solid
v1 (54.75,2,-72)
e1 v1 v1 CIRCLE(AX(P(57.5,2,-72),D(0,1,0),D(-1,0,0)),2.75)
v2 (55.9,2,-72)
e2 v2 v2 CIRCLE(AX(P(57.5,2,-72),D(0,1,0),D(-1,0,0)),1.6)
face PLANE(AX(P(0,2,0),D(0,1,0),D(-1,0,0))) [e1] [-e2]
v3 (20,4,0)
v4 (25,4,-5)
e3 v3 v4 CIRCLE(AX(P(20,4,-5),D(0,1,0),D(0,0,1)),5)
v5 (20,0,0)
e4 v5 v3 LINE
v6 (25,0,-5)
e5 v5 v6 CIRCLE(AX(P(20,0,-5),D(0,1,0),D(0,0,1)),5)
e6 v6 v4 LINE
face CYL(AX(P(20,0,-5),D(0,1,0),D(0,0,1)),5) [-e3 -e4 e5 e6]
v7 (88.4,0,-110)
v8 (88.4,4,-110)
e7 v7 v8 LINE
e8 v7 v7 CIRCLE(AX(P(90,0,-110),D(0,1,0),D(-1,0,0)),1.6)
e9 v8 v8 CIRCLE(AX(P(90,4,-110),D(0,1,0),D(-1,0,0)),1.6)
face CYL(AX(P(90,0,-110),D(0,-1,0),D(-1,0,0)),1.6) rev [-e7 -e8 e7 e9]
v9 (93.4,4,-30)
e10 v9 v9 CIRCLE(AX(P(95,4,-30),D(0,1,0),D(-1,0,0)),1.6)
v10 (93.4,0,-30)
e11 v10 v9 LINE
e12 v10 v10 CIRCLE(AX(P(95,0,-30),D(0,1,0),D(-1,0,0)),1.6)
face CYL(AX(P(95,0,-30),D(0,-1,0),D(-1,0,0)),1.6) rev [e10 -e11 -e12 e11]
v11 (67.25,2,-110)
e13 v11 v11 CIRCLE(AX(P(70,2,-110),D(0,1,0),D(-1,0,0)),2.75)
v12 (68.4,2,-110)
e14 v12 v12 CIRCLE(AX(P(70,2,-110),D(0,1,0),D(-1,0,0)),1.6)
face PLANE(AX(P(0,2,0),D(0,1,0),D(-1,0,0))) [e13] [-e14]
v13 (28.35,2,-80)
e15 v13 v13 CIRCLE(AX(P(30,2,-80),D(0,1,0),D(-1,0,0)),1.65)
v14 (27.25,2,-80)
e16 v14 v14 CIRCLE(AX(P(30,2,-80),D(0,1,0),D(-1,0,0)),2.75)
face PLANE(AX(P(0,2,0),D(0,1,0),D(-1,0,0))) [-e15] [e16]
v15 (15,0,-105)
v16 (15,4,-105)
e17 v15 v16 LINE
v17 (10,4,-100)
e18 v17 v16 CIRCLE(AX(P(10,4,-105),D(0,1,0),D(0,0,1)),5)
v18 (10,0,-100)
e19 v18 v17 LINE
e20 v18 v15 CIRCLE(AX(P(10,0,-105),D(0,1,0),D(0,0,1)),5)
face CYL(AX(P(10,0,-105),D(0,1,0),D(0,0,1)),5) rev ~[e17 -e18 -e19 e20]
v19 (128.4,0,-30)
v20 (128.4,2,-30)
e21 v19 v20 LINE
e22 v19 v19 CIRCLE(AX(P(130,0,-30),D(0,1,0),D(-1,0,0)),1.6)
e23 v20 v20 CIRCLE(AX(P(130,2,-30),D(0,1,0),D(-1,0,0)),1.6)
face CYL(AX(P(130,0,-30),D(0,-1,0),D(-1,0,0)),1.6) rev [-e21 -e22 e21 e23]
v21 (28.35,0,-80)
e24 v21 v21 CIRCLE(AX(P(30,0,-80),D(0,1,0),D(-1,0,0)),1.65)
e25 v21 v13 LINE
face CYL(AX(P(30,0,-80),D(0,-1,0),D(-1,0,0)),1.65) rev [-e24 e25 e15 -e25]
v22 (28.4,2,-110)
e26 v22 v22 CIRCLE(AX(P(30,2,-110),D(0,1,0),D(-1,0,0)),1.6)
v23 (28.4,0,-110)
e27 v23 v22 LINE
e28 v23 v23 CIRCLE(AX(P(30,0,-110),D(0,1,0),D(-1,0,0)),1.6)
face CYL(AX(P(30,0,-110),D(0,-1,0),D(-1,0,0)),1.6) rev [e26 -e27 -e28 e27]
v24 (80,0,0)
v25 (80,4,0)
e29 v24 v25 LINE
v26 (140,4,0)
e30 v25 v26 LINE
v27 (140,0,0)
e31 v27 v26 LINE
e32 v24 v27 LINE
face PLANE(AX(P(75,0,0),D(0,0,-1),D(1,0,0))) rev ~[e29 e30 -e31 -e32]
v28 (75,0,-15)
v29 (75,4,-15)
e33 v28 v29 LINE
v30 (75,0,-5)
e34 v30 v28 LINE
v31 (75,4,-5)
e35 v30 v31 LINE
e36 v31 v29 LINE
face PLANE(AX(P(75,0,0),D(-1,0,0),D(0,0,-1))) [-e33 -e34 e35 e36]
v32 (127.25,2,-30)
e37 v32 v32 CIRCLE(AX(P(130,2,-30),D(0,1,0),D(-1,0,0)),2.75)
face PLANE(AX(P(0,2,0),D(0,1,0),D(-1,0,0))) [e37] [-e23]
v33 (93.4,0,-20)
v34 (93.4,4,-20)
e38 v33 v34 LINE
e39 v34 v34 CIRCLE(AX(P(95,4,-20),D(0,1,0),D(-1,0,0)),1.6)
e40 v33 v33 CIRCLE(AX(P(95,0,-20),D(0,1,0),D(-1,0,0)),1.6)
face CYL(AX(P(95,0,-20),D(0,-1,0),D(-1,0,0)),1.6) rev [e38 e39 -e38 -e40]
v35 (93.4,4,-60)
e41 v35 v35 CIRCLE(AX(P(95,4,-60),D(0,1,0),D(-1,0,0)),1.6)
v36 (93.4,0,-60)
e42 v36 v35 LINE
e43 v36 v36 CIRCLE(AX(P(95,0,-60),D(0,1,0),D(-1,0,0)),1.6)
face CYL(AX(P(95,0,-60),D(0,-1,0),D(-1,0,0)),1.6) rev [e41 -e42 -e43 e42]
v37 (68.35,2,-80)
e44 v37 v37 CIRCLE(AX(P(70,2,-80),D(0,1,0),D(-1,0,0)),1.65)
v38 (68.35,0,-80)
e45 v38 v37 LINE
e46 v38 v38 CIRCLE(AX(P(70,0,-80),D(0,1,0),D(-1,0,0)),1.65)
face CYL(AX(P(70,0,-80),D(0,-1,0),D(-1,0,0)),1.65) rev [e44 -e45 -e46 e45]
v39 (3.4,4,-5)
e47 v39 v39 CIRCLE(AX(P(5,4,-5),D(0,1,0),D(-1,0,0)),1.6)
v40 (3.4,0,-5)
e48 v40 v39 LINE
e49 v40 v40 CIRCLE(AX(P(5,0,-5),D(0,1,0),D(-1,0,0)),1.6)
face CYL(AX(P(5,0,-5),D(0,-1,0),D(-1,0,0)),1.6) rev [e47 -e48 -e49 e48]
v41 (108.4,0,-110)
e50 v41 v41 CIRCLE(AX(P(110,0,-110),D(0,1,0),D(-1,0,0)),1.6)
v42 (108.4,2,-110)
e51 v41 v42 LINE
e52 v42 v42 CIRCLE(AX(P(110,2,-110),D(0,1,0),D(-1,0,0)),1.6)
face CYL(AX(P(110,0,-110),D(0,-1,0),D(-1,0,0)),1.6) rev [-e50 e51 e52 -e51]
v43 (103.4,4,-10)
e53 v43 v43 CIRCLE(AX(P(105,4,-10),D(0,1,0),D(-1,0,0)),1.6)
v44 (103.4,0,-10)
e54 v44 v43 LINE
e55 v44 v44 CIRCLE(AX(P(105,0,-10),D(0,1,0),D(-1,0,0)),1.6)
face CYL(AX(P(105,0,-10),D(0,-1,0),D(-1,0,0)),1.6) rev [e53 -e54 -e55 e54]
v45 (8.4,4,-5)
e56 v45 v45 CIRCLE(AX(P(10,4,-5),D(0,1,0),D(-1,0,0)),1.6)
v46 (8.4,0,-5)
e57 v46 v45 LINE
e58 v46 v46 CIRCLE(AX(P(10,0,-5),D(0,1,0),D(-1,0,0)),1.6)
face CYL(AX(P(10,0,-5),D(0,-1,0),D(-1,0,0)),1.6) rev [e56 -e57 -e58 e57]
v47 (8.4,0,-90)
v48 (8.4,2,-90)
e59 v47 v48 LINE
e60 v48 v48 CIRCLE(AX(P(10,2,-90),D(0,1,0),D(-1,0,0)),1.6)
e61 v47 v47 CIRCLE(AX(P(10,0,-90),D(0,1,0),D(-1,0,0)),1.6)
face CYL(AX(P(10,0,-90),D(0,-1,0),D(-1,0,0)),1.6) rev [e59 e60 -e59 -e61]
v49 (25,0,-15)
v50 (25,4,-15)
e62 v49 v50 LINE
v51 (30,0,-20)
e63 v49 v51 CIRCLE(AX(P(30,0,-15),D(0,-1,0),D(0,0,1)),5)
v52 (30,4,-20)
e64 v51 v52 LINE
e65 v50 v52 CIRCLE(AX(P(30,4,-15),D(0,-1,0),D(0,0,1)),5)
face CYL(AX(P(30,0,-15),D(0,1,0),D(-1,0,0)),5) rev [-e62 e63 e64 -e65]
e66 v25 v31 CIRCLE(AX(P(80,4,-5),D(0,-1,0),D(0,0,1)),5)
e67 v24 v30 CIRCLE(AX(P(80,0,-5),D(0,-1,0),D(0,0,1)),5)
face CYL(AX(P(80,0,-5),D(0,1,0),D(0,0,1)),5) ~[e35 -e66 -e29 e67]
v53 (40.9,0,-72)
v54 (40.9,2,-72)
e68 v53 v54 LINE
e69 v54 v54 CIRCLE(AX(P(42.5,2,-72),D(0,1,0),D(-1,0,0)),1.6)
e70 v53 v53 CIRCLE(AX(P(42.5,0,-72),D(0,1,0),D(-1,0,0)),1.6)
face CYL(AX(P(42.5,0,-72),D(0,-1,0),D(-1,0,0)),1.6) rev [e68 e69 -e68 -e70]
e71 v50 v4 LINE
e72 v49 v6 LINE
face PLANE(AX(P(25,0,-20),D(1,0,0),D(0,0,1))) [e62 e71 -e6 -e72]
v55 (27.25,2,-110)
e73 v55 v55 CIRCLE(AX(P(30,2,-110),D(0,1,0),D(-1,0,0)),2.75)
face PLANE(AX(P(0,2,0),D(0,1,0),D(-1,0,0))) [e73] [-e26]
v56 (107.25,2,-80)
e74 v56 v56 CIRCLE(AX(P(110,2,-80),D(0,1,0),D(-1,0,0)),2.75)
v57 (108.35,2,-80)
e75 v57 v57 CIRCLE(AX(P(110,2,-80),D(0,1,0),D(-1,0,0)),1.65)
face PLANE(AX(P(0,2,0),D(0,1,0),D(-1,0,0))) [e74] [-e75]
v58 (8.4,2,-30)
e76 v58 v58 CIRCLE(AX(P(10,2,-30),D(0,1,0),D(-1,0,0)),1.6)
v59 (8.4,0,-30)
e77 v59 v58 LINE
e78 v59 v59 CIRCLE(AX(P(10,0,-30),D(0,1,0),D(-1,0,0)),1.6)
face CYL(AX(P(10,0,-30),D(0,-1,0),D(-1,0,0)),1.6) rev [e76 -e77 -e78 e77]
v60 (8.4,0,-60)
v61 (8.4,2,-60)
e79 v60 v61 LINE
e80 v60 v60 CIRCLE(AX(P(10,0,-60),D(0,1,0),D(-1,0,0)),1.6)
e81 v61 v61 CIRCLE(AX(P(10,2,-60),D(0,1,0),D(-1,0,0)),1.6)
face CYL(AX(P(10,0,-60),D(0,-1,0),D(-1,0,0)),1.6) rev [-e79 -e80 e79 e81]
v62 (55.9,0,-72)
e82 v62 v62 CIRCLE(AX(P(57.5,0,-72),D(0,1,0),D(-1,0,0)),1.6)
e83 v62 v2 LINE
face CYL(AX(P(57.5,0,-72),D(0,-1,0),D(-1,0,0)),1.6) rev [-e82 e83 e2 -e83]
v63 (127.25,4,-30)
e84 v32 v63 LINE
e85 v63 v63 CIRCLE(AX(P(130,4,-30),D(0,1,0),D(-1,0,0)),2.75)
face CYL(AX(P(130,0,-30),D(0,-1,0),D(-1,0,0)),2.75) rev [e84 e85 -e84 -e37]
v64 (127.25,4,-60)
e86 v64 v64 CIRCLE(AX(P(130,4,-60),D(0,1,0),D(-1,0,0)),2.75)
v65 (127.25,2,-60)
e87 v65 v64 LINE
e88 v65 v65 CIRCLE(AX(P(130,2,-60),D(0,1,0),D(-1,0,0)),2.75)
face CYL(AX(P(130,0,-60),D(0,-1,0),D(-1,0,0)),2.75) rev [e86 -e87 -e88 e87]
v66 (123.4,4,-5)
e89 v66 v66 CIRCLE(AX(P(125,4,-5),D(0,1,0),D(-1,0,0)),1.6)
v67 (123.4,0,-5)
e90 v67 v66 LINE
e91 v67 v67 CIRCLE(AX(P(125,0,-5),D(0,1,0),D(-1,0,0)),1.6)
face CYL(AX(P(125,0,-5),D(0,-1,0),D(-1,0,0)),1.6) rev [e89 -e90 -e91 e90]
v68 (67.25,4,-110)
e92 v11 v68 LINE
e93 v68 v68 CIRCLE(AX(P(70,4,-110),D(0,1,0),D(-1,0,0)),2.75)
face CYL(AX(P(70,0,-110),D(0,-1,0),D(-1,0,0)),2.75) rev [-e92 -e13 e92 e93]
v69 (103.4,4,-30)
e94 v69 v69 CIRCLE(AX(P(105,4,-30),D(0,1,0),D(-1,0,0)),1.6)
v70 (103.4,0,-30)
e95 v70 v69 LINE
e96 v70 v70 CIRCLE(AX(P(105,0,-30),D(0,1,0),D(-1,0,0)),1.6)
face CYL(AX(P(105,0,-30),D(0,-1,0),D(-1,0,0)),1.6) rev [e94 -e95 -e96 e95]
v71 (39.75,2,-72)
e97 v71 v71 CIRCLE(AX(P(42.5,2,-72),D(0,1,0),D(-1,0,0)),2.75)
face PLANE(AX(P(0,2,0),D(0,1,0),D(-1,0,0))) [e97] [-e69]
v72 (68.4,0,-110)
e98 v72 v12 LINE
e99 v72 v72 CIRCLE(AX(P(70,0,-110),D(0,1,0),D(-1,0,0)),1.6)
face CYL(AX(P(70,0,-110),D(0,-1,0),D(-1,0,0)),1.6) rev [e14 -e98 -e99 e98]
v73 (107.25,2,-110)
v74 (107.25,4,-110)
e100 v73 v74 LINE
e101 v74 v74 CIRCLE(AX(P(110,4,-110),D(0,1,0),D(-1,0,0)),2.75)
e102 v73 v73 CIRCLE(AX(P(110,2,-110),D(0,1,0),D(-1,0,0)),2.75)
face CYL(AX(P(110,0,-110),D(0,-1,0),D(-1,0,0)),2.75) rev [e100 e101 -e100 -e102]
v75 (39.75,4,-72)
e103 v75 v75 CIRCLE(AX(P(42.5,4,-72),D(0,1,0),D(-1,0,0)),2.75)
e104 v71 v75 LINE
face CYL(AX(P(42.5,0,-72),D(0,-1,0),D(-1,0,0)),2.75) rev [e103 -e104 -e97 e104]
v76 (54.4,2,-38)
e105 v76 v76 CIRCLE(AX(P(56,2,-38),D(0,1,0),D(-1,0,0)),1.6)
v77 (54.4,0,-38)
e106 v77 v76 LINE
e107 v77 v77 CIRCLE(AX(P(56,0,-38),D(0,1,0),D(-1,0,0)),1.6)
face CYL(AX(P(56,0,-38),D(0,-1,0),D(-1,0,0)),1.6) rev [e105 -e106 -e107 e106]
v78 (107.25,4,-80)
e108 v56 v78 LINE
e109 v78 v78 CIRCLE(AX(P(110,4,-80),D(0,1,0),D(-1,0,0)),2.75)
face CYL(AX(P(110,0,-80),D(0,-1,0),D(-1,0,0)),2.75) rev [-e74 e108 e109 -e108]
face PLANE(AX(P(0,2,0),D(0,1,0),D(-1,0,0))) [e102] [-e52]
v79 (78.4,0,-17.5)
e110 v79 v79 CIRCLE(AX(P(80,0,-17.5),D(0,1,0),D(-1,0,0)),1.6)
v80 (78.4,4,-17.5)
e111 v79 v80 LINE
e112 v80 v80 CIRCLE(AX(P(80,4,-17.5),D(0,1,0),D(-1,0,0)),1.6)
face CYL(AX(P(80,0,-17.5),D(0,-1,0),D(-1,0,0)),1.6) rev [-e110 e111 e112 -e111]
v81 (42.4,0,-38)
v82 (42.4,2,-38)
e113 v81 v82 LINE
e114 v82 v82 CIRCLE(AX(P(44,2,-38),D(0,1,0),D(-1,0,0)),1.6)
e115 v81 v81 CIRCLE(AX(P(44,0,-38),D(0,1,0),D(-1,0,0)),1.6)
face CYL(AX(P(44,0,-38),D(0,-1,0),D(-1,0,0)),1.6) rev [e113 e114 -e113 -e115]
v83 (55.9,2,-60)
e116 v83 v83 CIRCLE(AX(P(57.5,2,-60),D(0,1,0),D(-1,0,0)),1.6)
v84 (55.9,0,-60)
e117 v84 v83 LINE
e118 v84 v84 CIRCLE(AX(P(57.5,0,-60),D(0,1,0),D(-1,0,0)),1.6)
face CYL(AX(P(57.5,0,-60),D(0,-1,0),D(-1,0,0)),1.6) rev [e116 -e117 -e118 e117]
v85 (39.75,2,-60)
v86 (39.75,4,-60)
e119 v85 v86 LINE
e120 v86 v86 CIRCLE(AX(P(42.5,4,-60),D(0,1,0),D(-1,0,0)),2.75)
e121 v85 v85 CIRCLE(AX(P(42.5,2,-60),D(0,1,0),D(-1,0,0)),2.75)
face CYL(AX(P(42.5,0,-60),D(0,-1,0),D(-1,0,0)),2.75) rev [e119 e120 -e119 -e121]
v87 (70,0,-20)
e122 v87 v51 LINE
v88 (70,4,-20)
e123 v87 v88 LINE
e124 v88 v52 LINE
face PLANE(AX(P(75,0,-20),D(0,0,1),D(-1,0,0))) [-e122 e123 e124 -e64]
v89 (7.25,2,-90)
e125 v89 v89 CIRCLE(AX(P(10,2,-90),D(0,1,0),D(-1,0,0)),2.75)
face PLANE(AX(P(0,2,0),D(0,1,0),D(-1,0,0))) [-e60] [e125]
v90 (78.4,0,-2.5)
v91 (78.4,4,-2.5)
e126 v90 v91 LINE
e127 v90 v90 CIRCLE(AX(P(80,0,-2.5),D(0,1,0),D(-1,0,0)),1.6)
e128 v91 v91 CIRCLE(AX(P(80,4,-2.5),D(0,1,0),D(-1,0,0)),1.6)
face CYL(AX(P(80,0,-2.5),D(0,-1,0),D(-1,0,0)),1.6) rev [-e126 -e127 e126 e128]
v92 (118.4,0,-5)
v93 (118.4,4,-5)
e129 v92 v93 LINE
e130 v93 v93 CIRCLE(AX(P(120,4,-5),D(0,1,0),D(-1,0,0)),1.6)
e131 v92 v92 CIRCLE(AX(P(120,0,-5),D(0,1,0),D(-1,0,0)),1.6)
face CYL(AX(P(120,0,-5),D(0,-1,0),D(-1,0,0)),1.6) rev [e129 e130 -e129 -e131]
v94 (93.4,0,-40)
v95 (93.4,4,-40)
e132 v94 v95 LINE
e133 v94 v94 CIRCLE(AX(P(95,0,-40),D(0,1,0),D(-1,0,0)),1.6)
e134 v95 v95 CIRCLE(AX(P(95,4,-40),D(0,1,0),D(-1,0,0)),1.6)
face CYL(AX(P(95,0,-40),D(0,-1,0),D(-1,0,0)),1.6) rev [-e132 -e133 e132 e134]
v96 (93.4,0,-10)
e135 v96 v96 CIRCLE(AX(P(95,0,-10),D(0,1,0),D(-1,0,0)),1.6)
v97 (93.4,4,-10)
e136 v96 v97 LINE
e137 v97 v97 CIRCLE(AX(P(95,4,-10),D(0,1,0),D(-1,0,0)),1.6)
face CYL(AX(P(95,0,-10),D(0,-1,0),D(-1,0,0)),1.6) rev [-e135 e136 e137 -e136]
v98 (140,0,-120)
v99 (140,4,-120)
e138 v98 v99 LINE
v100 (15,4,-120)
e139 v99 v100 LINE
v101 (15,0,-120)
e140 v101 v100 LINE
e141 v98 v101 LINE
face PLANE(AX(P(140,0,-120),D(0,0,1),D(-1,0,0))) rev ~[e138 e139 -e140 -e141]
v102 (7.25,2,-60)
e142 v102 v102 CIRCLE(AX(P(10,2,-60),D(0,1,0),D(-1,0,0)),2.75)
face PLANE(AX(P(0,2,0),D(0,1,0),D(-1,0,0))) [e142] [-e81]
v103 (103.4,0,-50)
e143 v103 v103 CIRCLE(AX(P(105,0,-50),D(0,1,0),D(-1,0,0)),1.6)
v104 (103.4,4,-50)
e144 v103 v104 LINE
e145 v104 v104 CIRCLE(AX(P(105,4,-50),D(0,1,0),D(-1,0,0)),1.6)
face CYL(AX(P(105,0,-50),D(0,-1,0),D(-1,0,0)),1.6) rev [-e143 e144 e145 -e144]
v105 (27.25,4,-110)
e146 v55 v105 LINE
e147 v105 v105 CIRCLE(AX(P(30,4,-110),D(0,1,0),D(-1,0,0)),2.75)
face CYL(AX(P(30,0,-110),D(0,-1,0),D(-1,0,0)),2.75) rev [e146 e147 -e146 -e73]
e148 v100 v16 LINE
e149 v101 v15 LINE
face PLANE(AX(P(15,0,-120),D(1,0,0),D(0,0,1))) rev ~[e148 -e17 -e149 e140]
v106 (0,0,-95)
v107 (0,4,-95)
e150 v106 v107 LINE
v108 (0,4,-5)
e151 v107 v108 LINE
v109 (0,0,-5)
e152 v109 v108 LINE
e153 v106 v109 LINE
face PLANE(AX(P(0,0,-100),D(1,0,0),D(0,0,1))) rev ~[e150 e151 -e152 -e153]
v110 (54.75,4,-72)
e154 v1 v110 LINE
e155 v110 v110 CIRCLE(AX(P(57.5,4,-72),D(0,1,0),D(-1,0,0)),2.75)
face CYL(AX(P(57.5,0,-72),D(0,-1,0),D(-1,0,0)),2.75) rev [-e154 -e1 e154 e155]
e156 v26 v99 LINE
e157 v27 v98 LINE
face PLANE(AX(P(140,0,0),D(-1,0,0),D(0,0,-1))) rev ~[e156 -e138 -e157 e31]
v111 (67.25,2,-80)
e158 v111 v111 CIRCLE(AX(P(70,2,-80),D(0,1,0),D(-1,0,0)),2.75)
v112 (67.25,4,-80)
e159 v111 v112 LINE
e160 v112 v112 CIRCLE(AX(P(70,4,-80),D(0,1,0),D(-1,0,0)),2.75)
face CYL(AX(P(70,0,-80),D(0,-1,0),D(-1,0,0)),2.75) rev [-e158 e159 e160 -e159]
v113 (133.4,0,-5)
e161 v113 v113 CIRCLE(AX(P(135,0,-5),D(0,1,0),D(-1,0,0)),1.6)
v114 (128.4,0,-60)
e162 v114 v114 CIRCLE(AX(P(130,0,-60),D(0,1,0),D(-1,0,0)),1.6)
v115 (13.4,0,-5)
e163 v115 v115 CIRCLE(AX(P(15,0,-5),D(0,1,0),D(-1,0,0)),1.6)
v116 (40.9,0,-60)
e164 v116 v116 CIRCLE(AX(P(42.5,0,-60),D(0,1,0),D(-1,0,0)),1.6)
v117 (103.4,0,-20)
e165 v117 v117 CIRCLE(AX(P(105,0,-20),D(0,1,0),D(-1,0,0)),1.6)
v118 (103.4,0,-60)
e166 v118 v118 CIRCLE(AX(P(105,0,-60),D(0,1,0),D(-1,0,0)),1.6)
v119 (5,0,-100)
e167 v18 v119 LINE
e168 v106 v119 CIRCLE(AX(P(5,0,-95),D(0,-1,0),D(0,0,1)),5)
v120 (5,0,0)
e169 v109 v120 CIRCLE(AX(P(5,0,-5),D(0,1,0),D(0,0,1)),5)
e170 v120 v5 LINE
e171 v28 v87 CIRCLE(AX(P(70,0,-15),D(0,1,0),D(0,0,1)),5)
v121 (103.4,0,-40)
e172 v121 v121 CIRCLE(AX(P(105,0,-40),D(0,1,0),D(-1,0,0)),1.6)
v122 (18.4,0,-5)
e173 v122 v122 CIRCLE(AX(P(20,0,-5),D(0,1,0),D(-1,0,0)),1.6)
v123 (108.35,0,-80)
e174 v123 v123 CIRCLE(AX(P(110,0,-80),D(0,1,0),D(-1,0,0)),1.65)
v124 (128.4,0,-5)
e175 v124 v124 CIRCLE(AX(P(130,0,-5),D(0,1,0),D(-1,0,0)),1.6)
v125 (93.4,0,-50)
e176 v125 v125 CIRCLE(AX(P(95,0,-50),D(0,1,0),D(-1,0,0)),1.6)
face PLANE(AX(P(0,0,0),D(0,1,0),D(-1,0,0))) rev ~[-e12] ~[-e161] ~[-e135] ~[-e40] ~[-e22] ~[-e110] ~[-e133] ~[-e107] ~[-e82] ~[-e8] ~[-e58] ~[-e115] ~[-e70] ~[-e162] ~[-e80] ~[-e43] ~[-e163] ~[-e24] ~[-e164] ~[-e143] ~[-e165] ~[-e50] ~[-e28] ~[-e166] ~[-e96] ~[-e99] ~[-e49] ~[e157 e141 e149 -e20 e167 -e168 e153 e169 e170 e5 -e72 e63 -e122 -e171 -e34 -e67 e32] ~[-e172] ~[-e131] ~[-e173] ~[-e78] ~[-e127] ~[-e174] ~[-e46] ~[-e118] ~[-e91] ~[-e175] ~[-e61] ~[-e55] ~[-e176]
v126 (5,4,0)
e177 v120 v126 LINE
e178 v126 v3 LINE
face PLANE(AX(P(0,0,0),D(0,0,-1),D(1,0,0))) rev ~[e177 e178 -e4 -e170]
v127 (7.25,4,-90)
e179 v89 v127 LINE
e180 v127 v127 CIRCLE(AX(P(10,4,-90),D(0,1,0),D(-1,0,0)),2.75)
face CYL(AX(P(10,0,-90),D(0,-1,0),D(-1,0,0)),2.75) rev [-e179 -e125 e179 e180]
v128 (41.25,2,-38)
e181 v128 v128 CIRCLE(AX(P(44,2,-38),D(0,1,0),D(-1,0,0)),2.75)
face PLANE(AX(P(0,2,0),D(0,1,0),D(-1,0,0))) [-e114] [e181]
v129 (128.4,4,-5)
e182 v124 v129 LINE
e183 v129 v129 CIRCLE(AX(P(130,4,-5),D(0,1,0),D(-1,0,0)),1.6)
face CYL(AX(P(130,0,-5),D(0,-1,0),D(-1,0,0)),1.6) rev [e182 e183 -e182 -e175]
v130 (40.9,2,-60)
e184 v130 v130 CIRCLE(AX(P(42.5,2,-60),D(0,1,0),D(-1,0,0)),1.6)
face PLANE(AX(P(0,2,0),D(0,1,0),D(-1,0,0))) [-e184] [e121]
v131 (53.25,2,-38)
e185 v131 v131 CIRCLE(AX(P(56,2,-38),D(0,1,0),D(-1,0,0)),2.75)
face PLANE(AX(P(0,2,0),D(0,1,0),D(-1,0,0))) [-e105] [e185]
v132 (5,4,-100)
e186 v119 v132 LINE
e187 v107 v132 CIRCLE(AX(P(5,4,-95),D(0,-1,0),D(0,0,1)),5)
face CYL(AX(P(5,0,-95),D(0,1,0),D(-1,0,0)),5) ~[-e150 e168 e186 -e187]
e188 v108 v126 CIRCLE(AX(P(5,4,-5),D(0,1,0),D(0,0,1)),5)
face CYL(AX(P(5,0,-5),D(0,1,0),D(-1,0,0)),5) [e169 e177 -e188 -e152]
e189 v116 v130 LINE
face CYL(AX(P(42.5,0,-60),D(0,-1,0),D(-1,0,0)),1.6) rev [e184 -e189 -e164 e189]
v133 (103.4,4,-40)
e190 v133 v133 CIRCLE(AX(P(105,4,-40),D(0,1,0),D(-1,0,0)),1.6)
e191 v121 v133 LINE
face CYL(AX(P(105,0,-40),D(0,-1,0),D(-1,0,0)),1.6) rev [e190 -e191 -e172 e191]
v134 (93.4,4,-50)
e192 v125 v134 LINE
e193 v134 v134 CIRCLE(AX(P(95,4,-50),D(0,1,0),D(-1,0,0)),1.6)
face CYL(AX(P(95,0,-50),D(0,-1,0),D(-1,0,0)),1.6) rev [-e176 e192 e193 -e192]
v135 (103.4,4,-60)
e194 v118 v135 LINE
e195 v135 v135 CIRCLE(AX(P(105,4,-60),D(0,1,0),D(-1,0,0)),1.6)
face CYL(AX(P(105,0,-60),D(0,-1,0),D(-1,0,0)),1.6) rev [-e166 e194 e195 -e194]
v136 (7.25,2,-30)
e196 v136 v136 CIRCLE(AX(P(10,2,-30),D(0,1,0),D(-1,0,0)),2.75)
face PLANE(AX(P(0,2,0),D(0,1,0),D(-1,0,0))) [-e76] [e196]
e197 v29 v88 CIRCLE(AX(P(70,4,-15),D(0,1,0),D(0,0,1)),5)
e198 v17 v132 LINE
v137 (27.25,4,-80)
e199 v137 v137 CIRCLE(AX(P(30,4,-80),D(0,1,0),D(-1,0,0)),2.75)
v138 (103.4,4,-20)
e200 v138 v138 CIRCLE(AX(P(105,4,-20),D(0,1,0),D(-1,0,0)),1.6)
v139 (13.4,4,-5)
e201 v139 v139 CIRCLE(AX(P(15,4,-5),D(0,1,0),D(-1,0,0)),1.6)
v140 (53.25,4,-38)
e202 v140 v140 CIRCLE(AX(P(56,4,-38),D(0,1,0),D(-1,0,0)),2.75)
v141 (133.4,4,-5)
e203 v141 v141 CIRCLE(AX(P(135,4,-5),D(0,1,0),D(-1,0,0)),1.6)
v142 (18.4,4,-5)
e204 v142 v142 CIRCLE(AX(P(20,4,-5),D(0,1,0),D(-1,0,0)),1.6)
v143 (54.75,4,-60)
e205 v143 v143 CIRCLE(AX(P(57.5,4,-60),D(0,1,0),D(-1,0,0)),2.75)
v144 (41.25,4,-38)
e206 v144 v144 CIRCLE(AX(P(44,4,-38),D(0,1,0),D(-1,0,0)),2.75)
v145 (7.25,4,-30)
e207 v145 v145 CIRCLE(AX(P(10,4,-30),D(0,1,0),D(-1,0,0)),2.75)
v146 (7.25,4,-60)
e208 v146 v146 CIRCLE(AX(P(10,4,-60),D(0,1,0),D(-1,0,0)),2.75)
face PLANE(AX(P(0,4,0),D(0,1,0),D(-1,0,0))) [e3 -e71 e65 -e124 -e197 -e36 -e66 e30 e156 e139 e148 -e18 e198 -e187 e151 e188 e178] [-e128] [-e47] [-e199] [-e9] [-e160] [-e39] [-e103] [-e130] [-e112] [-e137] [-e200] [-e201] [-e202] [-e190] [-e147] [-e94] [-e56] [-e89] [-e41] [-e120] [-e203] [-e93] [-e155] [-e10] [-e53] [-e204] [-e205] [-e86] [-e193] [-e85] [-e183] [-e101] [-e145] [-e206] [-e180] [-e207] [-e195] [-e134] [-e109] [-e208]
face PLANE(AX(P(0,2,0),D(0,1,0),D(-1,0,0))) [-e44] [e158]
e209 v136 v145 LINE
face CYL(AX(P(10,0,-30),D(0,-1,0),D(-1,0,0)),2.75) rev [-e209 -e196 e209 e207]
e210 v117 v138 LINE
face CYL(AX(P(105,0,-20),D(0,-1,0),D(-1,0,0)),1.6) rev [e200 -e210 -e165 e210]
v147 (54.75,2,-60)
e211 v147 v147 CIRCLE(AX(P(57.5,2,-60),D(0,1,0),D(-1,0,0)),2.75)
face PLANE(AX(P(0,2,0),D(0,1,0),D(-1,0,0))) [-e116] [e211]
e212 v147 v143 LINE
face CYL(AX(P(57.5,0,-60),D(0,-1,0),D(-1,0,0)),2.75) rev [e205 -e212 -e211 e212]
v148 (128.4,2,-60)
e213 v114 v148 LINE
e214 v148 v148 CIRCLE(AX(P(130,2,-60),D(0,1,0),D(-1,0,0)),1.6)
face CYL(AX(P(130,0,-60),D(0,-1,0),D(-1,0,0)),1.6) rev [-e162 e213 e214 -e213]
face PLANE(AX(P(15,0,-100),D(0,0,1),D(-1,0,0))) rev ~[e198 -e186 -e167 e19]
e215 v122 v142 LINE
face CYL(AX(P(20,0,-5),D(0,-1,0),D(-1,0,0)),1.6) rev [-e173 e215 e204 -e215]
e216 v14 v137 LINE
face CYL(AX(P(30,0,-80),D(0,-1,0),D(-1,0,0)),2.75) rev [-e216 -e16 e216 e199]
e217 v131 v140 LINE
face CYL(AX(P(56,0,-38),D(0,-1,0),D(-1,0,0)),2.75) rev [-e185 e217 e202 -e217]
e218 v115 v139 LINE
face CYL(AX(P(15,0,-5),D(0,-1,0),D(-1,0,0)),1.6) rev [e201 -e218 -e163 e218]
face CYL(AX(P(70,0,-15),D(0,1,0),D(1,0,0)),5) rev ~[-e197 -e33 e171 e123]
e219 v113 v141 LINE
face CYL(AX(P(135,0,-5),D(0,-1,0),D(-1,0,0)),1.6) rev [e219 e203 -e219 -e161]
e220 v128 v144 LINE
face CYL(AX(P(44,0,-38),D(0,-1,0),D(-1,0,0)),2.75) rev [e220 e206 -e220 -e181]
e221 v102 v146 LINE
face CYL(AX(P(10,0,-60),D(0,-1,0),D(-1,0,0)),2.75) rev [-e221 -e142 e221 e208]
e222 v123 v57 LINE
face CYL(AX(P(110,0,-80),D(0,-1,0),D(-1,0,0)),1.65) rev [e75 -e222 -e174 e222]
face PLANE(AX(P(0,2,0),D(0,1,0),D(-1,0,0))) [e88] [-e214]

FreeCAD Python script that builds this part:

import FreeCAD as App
import Part
import Sketcher
Q = App.Units.Quantity


def edges_at(feature, points):
    """Names of the edges that pass closest to the given points."""
    edges = feature.Shape.Edges
    near = lambda p: min(range(len(edges)), key=lambda i: edges[i].distToShape(Part.Vertex(*p))[0])
    return sorted({f"Edge{near(p) + 1}" for p in points})

doc = App.newDocument("Part")
body = doc.addObject("PartDesign::Body", "Body")

# Sketch on XZ plane
sketch1 = body.newObject("Sketcher::SketchObject", "Sketch")
sketch1.AttachmentSupport = (doc.getObject("XZ_Plane"), [""])
sketch1.MapMode = "FlatFace"
sketch1.addGeometry(Part.LineSegment(App.Vector(0, -100, 0), App.Vector(0, 0, 0)), False)
sketch1.addGeometry(Part.LineSegment(App.Vector(0, 0, 0), App.Vector(25, 0, 0)), False)
sketch1.addGeometry(Part.LineSegment(App.Vector(25, 0, 0), App.Vector(25, -20, 0)), False)
sketch1.addGeometry(Part.LineSegment(App.Vector(25, -20, 0), App.Vector(75, -20, 0)), False)
sketch1.addGeometry(Part.LineSegment(App.Vector(75, -20, 0), App.Vector(75, 0, 0)), False)
sketch1.addGeometry(Part.LineSegment(App.Vector(75, 0, 0), App.Vector(140, 0, 0)), False)
sketch1.addGeometry(Part.LineSegment(App.Vector(140, 0, 0), App.Vector(140, -120, 0)), False)
sketch1.addGeometry(Part.LineSegment(App.Vector(140, -120, 0), App.Vector(15, -120, 0)), False)
sketch1.addGeometry(Part.LineSegment(App.Vector(15, -120, 0), App.Vector(15, -100, 0)), False)
sketch1.addGeometry(Part.LineSegment(App.Vector(15, -100, 0), App.Vector(0, -100, 0)), False)
sketch1.addGeometry(Part.Circle(App.Vector(110, -110, 0), App.Vector(0, 0, 1), 2.8), False)
sketch1.addGeometry(Part.Circle(App.Vector(90, -110, 0), App.Vector(0, 0, 1), 1.6), False)
sketch1.addGeometry(Part.Circle(App.Vector(110, -80, 0), App.Vector(0, 0, 1), 2.8), False)
sketch1.addGeometry(Part.Circle(App.Vector(70, -110, 0), App.Vector(0, 0, 1), 2.8), False)
sketch1.addGeometry(Part.Circle(App.Vector(30, -110, 0), App.Vector(0, 0, 1), 2.8), False)
sketch1.addGeometry(Part.Circle(App.Vector(70, -80, 0), App.Vector(0, 0, 1), 2.8), False)
sketch1.addGeometry(Part.Circle(App.Vector(57.5, -72, 0), App.Vector(0, 0, 1), 2.8), False)
sketch1.addGeometry(Part.Circle(App.Vector(42.5, -72, 0), App.Vector(0, 0, 1), 2.8), False)
sketch1.addGeometry(Part.Circle(App.Vector(30, -80, 0), App.Vector(0, 0, 1), 2.8), False)
sketch1.addGeometry(Part.Circle(App.Vector(10, -90, 0), App.Vector(0, 0, 1), 2.8), False)
sketch1.addGeometry(Part.Circle(App.Vector(130, -60, 0), App.Vector(0, 0, 1), 2.8), False)
sketch1.addGeometry(Part.Circle(App.Vector(105, -60, 0), App.Vector(0, 0, 1), 1.6), False)
sketch1.addGeometry(Part.Circle(App.Vector(95, -60, 0), App.Vector(0, 0, 1), 1.6), False)
sketch1.addGeometry(Part.Circle(App.Vector(105, -50, 0), App.Vector(0, 0, 1), 1.6), False)
sketch1.addGeometry(Part.Circle(App.Vector(95, -50, 0), App.Vector(0, 0, 1), 1.6), False)
sketch1.addGeometry(Part.Circle(App.Vector(105, -40, 0), App.Vector(0, 0, 1), 1.6), False)
sketch1.addGeometry(Part.Circle(App.Vector(95, -40, 0), App.Vector(0, 0, 1), 1.6), False)
sketch1.addGeometry(Part.Circle(App.Vector(130, -30, 0), App.Vector(0, 0, 1), 2.8), False)
sketch1.addGeometry(Part.Circle(App.Vector(135, -5, 0), App.Vector(0, 0, 1), 1.6), False)
sketch1.addGeometry(Part.Circle(App.Vector(130, -5, 0), App.Vector(0, 0, 1), 1.6), False)
sketch1.addGeometry(Part.Circle(App.Vector(125, -5, 0), App.Vector(0, 0, 1), 1.6), False)
sketch1.addGeometry(Part.Circle(App.Vector(120, -5, 0), App.Vector(0, 0, 1), 1.6), False)
sketch1.addGeometry(Part.Circle(App.Vector(105, -30, 0), App.Vector(0, 0, 1), 1.6), False)
sketch1.addGeometry(Part.Circle(App.Vector(95, -30, 0), App.Vector(0, 0, 1), 1.6), False)
sketch1.addGeometry(Part.Circle(App.Vector(105, -20, 0), App.Vector(0, 0, 1), 1.6), False)
sketch1.addGeometry(Part.Circle(App.Vector(95, -20, 0), App.Vector(0, 0, 1), 1.6), False)
sketch1.addGeometry(Part.Circle(App.Vector(80, -17.5, 0), App.Vector(0, 0, 1), 1.6), False)
sketch1.addGeometry(Part.Circle(App.Vector(105, -10, 0), App.Vector(0, 0, 1), 1.6), False)
sketch1.addGeometry(Part.Circle(App.Vector(95, -10, 0), App.Vector(0, 0, 1), 1.6), False)
sketch1.addGeometry(Part.Circle(App.Vector(80, -2.5, 0), App.Vector(0, 0, 1), 1.6), False)
sketch1.addGeometry(Part.Circle(App.Vector(57.5, -60, 0), App.Vector(0, 0, 1), 2.8), False)
sketch1.addGeometry(Part.Circle(App.Vector(42.5, -60, 0), App.Vector(0, 0, 1), 2.8), False)
sketch1.addGeometry(Part.Circle(App.Vector(56, -38, 0), App.Vector(0, 0, 1), 2.8), False)
sketch1.addGeometry(Part.Circle(App.Vector(44, -38, 0), App.Vector(0, 0, 1), 2.8), False)
sketch1.addGeometry(Part.Circle(App.Vector(10, -60, 0), App.Vector(0, 0, 1), 2.8), False)
sketch1.addGeometry(Part.Circle(App.Vector(10, -30, 0), App.Vector(0, 0, 1), 2.8), False)
sketch1.addGeometry(Part.Circle(App.Vector(20, -5, 0), App.Vector(0, 0, 1), 1.6), False)
sketch1.addGeometry(Part.Circle(App.Vector(15, -5, 0), App.Vector(0, 0, 1), 1.6), False)
sketch1.addGeometry(Part.Circle(App.Vector(10, -5, 0), App.Vector(0, 0, 1), 1.6), False)
sketch1.addGeometry(Part.Circle(App.Vector(5, -5, 0), App.Vector(0, 0, 1), 1.6), False)
sketch1.addConstraint(Sketcher.Constraint("Coincident", 0, 2, 1, 1))
sketch1.addConstraint(Sketcher.Constraint("Coincident", 1, 2, 2, 1))
sketch1.addConstraint(Sketcher.Constraint("Coincident", 2, 2, 3, 1))
sketch1.addConstraint(Sketcher.Constraint("Coincident", 3, 2, 4, 1))
sketch1.addConstraint(Sketcher.Constraint("Coincident", 4, 2, 5, 1))
sketch1.addConstraint(Sketcher.Constraint("Coincident", 5, 2, 6, 1))
sketch1.addConstraint(Sketcher.Constraint("Coincident", 6, 2, 7, 1))
sketch1.addConstraint(Sketcher.Constraint("Coincident", 7, 2, 8, 1))
sketch1.addConstraint(Sketcher.Constraint("Coincident", 8, 2, 9, 1))
sketch1.addConstraint(Sketcher.Constraint("Coincident", 9, 2, 0, 1))
sketch1.addConstraint(Sketcher.Constraint("Vertical", 0))
sketch1.addConstraint(Sketcher.Constraint("Horizontal", 1))
sketch1.addConstraint(Sketcher.Constraint("Vertical", 2))
sketch1.addConstraint(Sketcher.Constraint("Horizontal", 3))
sketch1.addConstraint(Sketcher.Constraint("Vertical", 4))
sketch1.addConstraint(Sketcher.Constraint("Horizontal", 5))
sketch1.addConstraint(Sketcher.Constraint("Vertical", 6))
sketch1.addConstraint(Sketcher.Constraint("Horizontal", 7))
sketch1.addConstraint(Sketcher.Constraint("Vertical", 8))
sketch1.addConstraint(Sketcher.Constraint("Horizontal", 9))
sketch1.addConstraint(Sketcher.Constraint("Coincident", 0, 2, -1, 1))
sketch1.addConstraint(Sketcher.Constraint("Equal", 10, 12))
sketch1.addConstraint(Sketcher.Constraint("Equal", 12, 13))
sketch1.addConstraint(Sketcher.Constraint("Equal", 13, 14))
sketch1.addConstraint(Sketcher.Constraint("Equal", 14, 15))
sketch1.addConstraint(Sketcher.Constraint("Equal", 15, 16))
sketch1.addConstraint(Sketcher.Constraint("Equal", 16, 17))
sketch1.addConstraint(Sketcher.Constraint("Equal", 17, 18))
sketch1.addConstraint(Sketcher.Constraint("Equal", 18, 19))
sketch1.addConstraint(Sketcher.Constraint("Equal", 19, 20))
sketch1.addConstraint(Sketcher.Constraint("Equal", 11, 21))
sketch1.addConstraint(Sketcher.Constraint("Equal", 21, 22))
sketch1.addConstraint(Sketcher.Constraint("Equal", 22, 23))
sketch1.addConstraint(Sketcher.Constraint("Equal", 23, 24))
sketch1.addConstraint(Sketcher.Constraint("Equal", 24, 25))
sketch1.addConstraint(Sketcher.Constraint("Equal", 25, 26))
sketch1.addConstraint(Sketcher.Constraint("Equal", 20, 27))
sketch1.addConstraint(Sketcher.Constraint("Equal", 26, 28))
sketch1.addConstraint(Sketcher.Constraint("Equal", 28, 29))
sketch1.addConstraint(Sketcher.Constraint("Equal", 29, 30))
sketch1.addConstraint(Sketcher.Constraint("Equal", 30, 31))
sketch1.addConstraint(Sketcher.Constraint("Equal", 31, 32))
sketch1.addConstraint(Sketcher.Constraint("Equal", 32, 33))
sketch1.addConstraint(Sketcher.Constraint("Equal", 33, 34))
sketch1.addConstraint(Sketcher.Constraint("Equal", 34, 35))
sketch1.addConstraint(Sketcher.Constraint("Equal", 35, 36))
sketch1.addConstraint(Sketcher.Constraint("Equal", 36, 37))
sketch1.addConstraint(Sketcher.Constraint("Equal", 37, 38))
sketch1.addConstraint(Sketcher.Constraint("Equal", 38, 39))
sketch1.addConstraint(Sketcher.Constraint("Equal", 27, 40))
sketch1.addConstraint(Sketcher.Constraint("Equal", 40, 41))
sketch1.addConstraint(Sketcher.Constraint("Equal", 41, 42))
sketch1.addConstraint(Sketcher.Constraint("Equal", 42, 43))
sketch1.addConstraint(Sketcher.Constraint("Equal", 43, 44))
sketch1.addConstraint(Sketcher.Constraint("Equal", 44, 45))
sketch1.addConstraint(Sketcher.Constraint("Equal", 39, 46))
sketch1.addConstraint(Sketcher.Constraint("Equal", 46, 47))
sketch1.addConstraint(Sketcher.Constraint("Equal", 47, 48))
sketch1.addConstraint(Sketcher.Constraint("Equal", 48, 49))
sketch1.addConstraint(Sketcher.Constraint("PointOnObject", 4, 2, -1))
sketch1.addConstraint(Sketcher.Constraint("Horizontal", 10, 3, 11, 3))
sketch1.addConstraint(Sketcher.Constraint("Horizontal", 11, 3, 13, 3))
sketch1.addConstraint(Sketcher.Constraint("Horizontal", 13, 3, 14, 3))
sketch1.addConstraint(Sketcher.Constraint("Horizontal", 12, 3, 15, 3))
sketch1.addConstraint(Sketcher.Constraint("Horizontal", 16, 3, 17, 3))
sketch1.addConstraint(Sketcher.Constraint("Horizontal", 15, 3, 18, 3))
sketch1.addConstraint(Sketcher.Constraint("Horizontal", 20, 3, 21, 3))
sketch1.addConstraint(Sketcher.Constraint("Horizontal", 21, 3, 22, 3))
sketch1.addConstraint(Sketcher.Constraint("Horizontal", 23, 3, 24, 3))
sketch1.addConstraint(Sketcher.Constraint("Horizontal", 25, 3, 26, 3))
sketch1.addConstraint(Sketcher.Constraint("Horizontal", 28, 3, 29, 3))
sketch1.addConstraint(Sketcher.Constraint("Horizontal", 29, 3, 30, 3))
sketch1.addConstraint(Sketcher.Constraint("Horizontal", 30, 3, 31, 3))
sketch1.addConstraint(Sketcher.Constraint("Horizontal", 27, 3, 32, 3))
sketch1.addConstraint(Sketcher.Constraint("Horizontal", 32, 3, 33, 3))
sketch1.addConstraint(Sketcher.Constraint("Horizontal", 34, 3, 35, 3))
sketch1.addConstraint(Sketcher.Constraint("Horizontal", 37, 3, 38, 3))
sketch1.addConstraint(Sketcher.Constraint("Horizontal", 22, 3, 40, 3))
sketch1.addConstraint(Sketcher.Constraint("Horizontal", 40, 3, 41, 3))
sketch1.addConstraint(Sketcher.Constraint("Horizontal", 42, 3, 43, 3))
sketch1.addConstraint(Sketcher.Constraint("Horizontal", 41, 3, 44, 3))
sketch1.addConstraint(Sketcher.Constraint("Horizontal", 33, 3, 45, 3))
sketch1.addConstraint(Sketcher.Constraint("Horizontal", 31, 3, 46, 3))
sketch1.addConstraint(Sketcher.Constraint("Horizontal", 46, 3, 47, 3))
sketch1.addConstraint(Sketcher.Constraint("Horizontal", 47, 3, 48, 3))
sketch1.addConstraint(Sketcher.Constraint("Horizontal", 48, 3, 49, 3))
sketch1.addConstraint(Sketcher.Constraint("Horizontal", 35, 3, 2, 2))
sketch1.addConstraint(Sketcher.Constraint("Vertical", 10, 3, 12, 3))
sketch1.addConstraint(Sketcher.Constraint("Vertical", 13, 3, 15, 3))
sketch1.addConstraint(Sketcher.Constraint("Vertical", 14, 3, 18, 3))
sketch1.addConstraint(Sketcher.Constraint("Vertical", 21, 3, 23, 3))
sketch1.addConstraint(Sketcher.Constraint("Vertical", 22, 3, 24, 3))
sketch1.addConstraint(Sketcher.Constraint("Vertical", 23, 3, 25, 3))
sketch1.addConstraint(Sketcher.Constraint("Vertical", 24, 3, 26, 3))
sketch1.addConstraint(Sketcher.Constraint("Vertical", 20, 3, 27, 3))
sketch1.addConstraint(Sketcher.Constraint("Vertical", 27, 3, 29, 3))
sketch1.addConstraint(Sketcher.Constraint("Vertical", 25, 3, 32, 3))
sketch1.addConstraint(Sketcher.Constraint("Vertical", 26, 3, 33, 3))
sketch1.addConstraint(Sketcher.Constraint("Vertical", 32, 3, 34, 3))
sketch1.addConstraint(Sketcher.Constraint("Vertical", 33, 3, 35, 3))
sketch1.addConstraint(Sketcher.Constraint("Vertical", 34, 3, 37, 3))
sketch1.addConstraint(Sketcher.Constraint("Vertical", 35, 3, 38, 3))
sketch1.addConstraint(Sketcher.Constraint("Vertical", 36, 3, 39, 3))
sketch1.addConstraint(Sketcher.Constraint("Vertical", 16, 3, 40, 3))
sketch1.addConstraint(Sketcher.Constraint("Vertical", 17, 3, 41, 3))
sketch1.addConstraint(Sketcher.Constraint("Vertical", 19, 3, 44, 3))
sketch1.addConstraint(Sketcher.Constraint("Vertical", 44, 3, 45, 3))
sketch1.addConstraint(Sketcher.Constraint("Vertical", 45, 3, 48, 3))
sketch1.addConstraint(Sketcher.Constraint("Vertical", 47, 3, 7, 2))
sketch1.addConstraint(Sketcher.Constraint("Equal", 4, 8))
sketch1.addConstraint(Sketcher.Constraint("Diameter", 10, Q("5.5 mm")))
sketch1.addConstraint(Sketcher.Constraint("Diameter", 11, Q("3.2 mm")))
sketch1.addConstraint(Sketcher.Constraint("DistanceX", 1, 1, 1, 2, Q("25 mm")))
sketch1.addConstraint(Sketcher.Constraint("DistanceX", 3, 1, 3, 2, Q("50 mm")))
sketch1.addConstraint(Sketcher.Constraint("DistanceX", 9, 2, 9, 1, Q("15 mm")))
sketch1.addConstraint(Sketcher.Constraint("DistanceY", 2, 2, 2, 1, Q("20 mm")))
sketch1.addConstraint(Sketcher.Constraint("DistanceY", 6, 2, 6, 1, Q("120 mm")))
sketch1.addConstraint(Sketcher.Constraint("DistanceX", -1, 1, 14, 3, Q("30 mm")))
sketch1.addConstraint(Sketcher.Constraint("DistanceX", -1, 1, 19, 3, Q("10 mm")))
sketch1.addConstraint(Sketcher.Constraint("DistanceY", 23, 3, -1, 1, Q("50 mm")))
sketch1.addConstraint(Sketcher.Constraint("DistanceY", 27, 3, -1, 1, Q("30 mm")))
sketch1.addConstraint(Sketcher.Constraint("DistanceY", 28, 3, -1, 1, Q("5 mm")))
sketch1.addConstraint(Sketcher.Constraint("DistanceX", -1, 1, 31, 3, Q("120 mm")))
sketch1.addConstraint(Sketcher.Constraint("DistanceY", 37, 3, -1, 1, Q("10 mm")))
sketch1.addConstraint(Sketcher.Constraint("DistanceX", -1, 1, 46, 3, Q("20 mm")))
sketch1.addConstraint(Sketcher.Constraint("DistanceX", -1, 1, 49, 3, Q("5 mm")))
sketch1.addConstraint(Sketcher.Constraint("DistanceX", -1, 1, 5, 2, Q("140 mm")))
sketch1.addConstraint(Sketcher.Constraint("DistanceX", 11, 3, 10, 3, Q("20 mm")))
sketch1.addConstraint(Sketcher.Constraint("DistanceY", 10, 3, 12, 3, Q("30 mm")))
sketch1.addConstraint(Sketcher.Constraint("DistanceX", 13, 3, 11, 3, Q("20 mm")))
sketch1.addConstraint(Sketcher.Constraint("DistanceX", 17, 3, 16, 3, Q("15 mm")))
sketch1.addConstraint(Sketcher.Constraint("DistanceY", 19, 3, 18, 3, Q("10 mm")))
sketch1.addConstraint(Sketcher.Constraint("DistanceX", 12, 3, 20, 3, Q("20 mm")))
sketch1.addConstraint(Sketcher.Constraint("DistanceY", 12, 3, 20, 3, Q("20 mm")))
sketch1.addConstraint(Sketcher.Constraint("DistanceX", 21, 3, 12, 3, Q("5 mm")))
sketch1.addConstraint(Sketcher.Constraint("DistanceX", 22, 3, 21, 3, Q("10 mm")))
sketch1.addConstraint(Sketcher.Constraint("DistanceY", 21, 3, 23, 3, Q("10 mm")))
sketch1.addConstraint(Sketcher.Constraint("DistanceY", 23, 3, 25, 3, Q("10 mm")))
sketch1.addConstraint(Sketcher.Constraint("DistanceX", 27, 3, 28, 3, Q("5 mm")))
sketch1.addConstraint(Sketcher.Constraint("DistanceX", 30, 3, 29, 3, Q("5 mm")))
sketch1.addConstraint(Sketcher.Constraint("DistanceX", 31, 3, 30, 3, Q("5 mm")))
sketch1.addConstraint(Sketcher.Constraint("DistanceX", 36, 3, 35, 3, Q("15 mm")))
sketch1.addConstraint(Sketcher.Constraint("DistanceY", 36, 3, 39, 3, Q("15 mm")))
sketch1.addConstraint(Sketcher.Constraint("DistanceY", 39, 3, -1, 1, Q("2.5 mm")))
sketch1.addConstraint(Sketcher.Constraint("DistanceY", 16, 3, -1, 1, Q("72 mm")))
sketch1.addConstraint(Sketcher.Constraint("DistanceX", -1, 1, 42, 3, Q("56 mm")))
sketch1.addConstraint(Sketcher.Constraint("DistanceY", 42, 3, -1, 1, Q("38 mm")))
sketch1.addConstraint(Sketcher.Constraint("DistanceX", -1, 1, 43, 3, Q("44 mm")))
sketch1.addConstraint(Sketcher.Constraint("DistanceX", -1, 1, 16, 3, Q("57.5 mm")))
pad1 = body.newObject("PartDesign::Pad", "Pad")
pad1.Profile = sketch1
pad1.Length = 4
pad1.Reversed = True

# Sketch on XZ plane
sketch2 = body.newObject("Sketcher::SketchObject", "Sketch001")
sketch2.AttachmentSupport = (doc.getObject("XZ_Plane"), [""])
sketch2.MapMode = "FlatFace"
sketch2.addGeometry(Part.Circle(App.Vector(130, -30, 0), App.Vector(0, 0, 1), 2.8), False)
sketch2.addGeometry(Part.Circle(App.Vector(130, -30, 0), App.Vector(0, 0, 1), 1.6), False)
sketch2.addGeometry(Part.Circle(App.Vector(130, -60, 0), App.Vector(0, 0, 1), 2.8), False)
sketch2.addGeometry(Part.Circle(App.Vector(130, -60, 0), App.Vector(0, 0, 1), 1.6), False)
sketch2.addGeometry(Part.Circle(App.Vector(30, -110, 0), App.Vector(0, 0, 1), 2.8), False)
sketch2.addGeometry(Part.Circle(App.Vector(30, -110, 0), App.Vector(0, 0, 1), 1.6), False)
sketch2.addGeometry(Part.Circle(App.Vector(110, -110, 0), App.Vector(0, 0, 1), 2.8), False)
sketch2.addGeometry(Part.Circle(App.Vector(110, -110, 0), App.Vector(0, 0, 1), 1.6), False)
sketch2.addGeometry(Part.Circle(App.Vector(70, -110, 0), App.Vector(0, 0, 1), 2.8), False)
sketch2.addGeometry(Part.Circle(App.Vector(70, -110, 0), App.Vector(0, 0, 1), 1.6), False)
sketch2.addGeometry(Part.Circle(App.Vector(44, -38, 0), App.Vector(0, 0, 1), 2.8), False)
sketch2.addGeometry(Part.Circle(App.Vector(44, -38, 0), App.Vector(0, 0, 1), 1.6), False)
sketch2.addGeometry(Part.Circle(App.Vector(56, -38, 0), App.Vector(0, 0, 1), 2.8), False)
sketch2.addGeometry(Part.Circle(App.Vector(56, -38, 0), App.Vector(0, 0, 1), 1.6), False)
sketch2.addGeometry(Part.Circle(App.Vector(57.5, -60, 0), App.Vector(0, 0, 1), 2.8), False)
sketch2.addGeometry(Part.Circle(App.Vector(57.5, -60, 0), App.Vector(0, 0, 1), 1.6), False)
sketch2.addGeometry(Part.Circle(App.Vector(57.5, -72, 0), App.Vector(0, 0, 1), 2.8), False)
sketch2.addGeometry(Part.Circle(App.Vector(57.5, -72, 0), App.Vector(0, 0, 1), 1.6), False)
sketch2.addGeometry(Part.Circle(App.Vector(42.5, -60, 0), App.Vector(0, 0, 1), 2.8), False)
sketch2.addGeometry(Part.Circle(App.Vector(42.5, -60, 0), App.Vector(0, 0, 1), 1.6), False)
sketch2.addGeometry(Part.Circle(App.Vector(42.5, -72, 0), App.Vector(0, 0, 1), 2.8), False)
sketch2.addGeometry(Part.Circle(App.Vector(42.5, -72, 0), App.Vector(0, 0, 1), 1.6), False)
sketch2.addGeometry(Part.Circle(App.Vector(10, -30, 0), App.Vector(0, 0, 1), 2.8), False)
sketch2.addGeometry(Part.Circle(App.Vector(10, -30, 0), App.Vector(0, 0, 1), 1.6), False)
sketch2.addGeometry(Part.Circle(App.Vector(10, -60, 0), App.Vector(0, 0, 1), 2.8), False)
sketch2.addGeometry(Part.Circle(App.Vector(10, -60, 0), App.Vector(0, 0, 1), 1.6), False)
sketch2.addGeometry(Part.Circle(App.Vector(10, -90, 0), App.Vector(0, 0, 1), 2.8), False)
sketch2.addGeometry(Part.Circle(App.Vector(10, -90, 0), App.Vector(0, 0, 1), 1.6), False)
sketch2.addGeometry(Part.Circle(App.Vector(110, -80, 0), App.Vector(0, 0, 1), 2.8), False)
sketch2.addGeometry(Part.Circle(App.Vector(110, -80, 0), App.Vector(0, 0, 1), 1.6), False)
sketch2.addGeometry(Part.Circle(App.Vector(70, -80, 0), App.Vector(0, 0, 1), 2.8), False)
sketch2.addGeometry(Part.Circle(App.Vector(70, -80, 0), App.Vector(0, 0, 1), 1.6), False)
sketch2.addGeometry(Part.Circle(App.Vector(30, -80, 0), App.Vector(0, 0, 1), 2.8), False)
sketch2.addGeometry(Part.Circle(App.Vector(30, -80, 0), App.Vector(0, 0, 1), 1.6), False)
sketch2.addConstraint(Sketcher.Constraint("Coincident", 1, 3, 0, 3))
sketch2.addConstraint(Sketcher.Constraint("Coincident", 3, 3, 2, 3))
sketch2.addConstraint(Sketcher.Constraint("Coincident", 5, 3, 4, 3))
sketch2.addConstraint(Sketcher.Constraint("Coincident", 7, 3, 6, 3))
sketch2.addConstraint(Sketcher.Constraint("Coincident", 9, 3, 8, 3))
sketch2.addConstraint(Sketcher.Constraint("Coincident", 11, 3, 10, 3))
sketch2.addConstraint(Sketcher.Constraint("Coincident", 13, 3, 12, 3))
sketch2.addConstraint(Sketcher.Constraint("Coincident", 15, 3, 14, 3))
sketch2.addConstraint(Sketcher.Constraint("Coincident", 17, 3, 16, 3))
sketch2.addConstraint(Sketcher.Constraint("Coincident", 19, 3, 18, 3))
sketch2.addConstraint(Sketcher.Constraint("Coincident", 21, 3, 20, 3))
sketch2.addConstraint(Sketcher.Constraint("Coincident", 23, 3, 22, 3))
sketch2.addConstraint(Sketcher.Constraint("Coincident", 25, 3, 24, 3))
sketch2.addConstraint(Sketcher.Constraint("Coincident", 27, 3, 26, 3))
sketch2.addConstraint(Sketcher.Constraint("Coincident", 29, 3, 28, 3))
sketch2.addConstraint(Sketcher.Constraint("Coincident", 31, 3, 30, 3))
sketch2.addConstraint(Sketcher.Constraint("Coincident", 33, 3, 32, 3))
sketch2.addConstraint(Sketcher.Constraint("Equal", 0, 2))
sketch2.addConstraint(Sketcher.Constraint("Equal", 1, 3))
sketch2.addConstraint(Sketcher.Constraint("Equal", 2, 4))
sketch2.addConstraint(Sketcher.Constraint("Equal", 3, 5))
sketch2.addConstraint(Sketcher.Constraint("Equal", 4, 6))
sketch2.addConstraint(Sketcher.Constraint("Equal", 5, 7))
sketch2.addConstraint(Sketcher.Constraint("Equal", 6, 8))
sketch2.addConstraint(Sketcher.Constraint("Equal", 7, 9))
sketch2.addConstraint(Sketcher.Constraint("Equal", 8, 10))
sketch2.addConstraint(Sketcher.Constraint("Equal", 9, 11))
sketch2.addConstraint(Sketcher.Constraint("Equal", 10, 12))
sketch2.addConstraint(Sketcher.Constraint("Equal", 11, 13))
sketch2.addConstraint(Sketcher.Constraint("Equal", 12, 14))
sketch2.addConstraint(Sketcher.Constraint("Equal", 13, 15))
sketch2.addConstraint(Sketcher.Constraint("Equal", 14, 16))
sketch2.addConstraint(Sketcher.Constraint("Equal", 15, 17))
sketch2.addConstraint(Sketcher.Constraint("Equal", 16, 18))
sketch2.addConstraint(Sketcher.Constraint("Equal", 17, 19))
sketch2.addConstraint(Sketcher.Constraint("Equal", 18, 20))
sketch2.addConstraint(Sketcher.Constraint("Equal", 19, 21))
sketch2.addConstraint(Sketcher.Constraint("Equal", 20, 22))
sketch2.addConstraint(Sketcher.Constraint("Equal", 21, 23))
sketch2.addConstraint(Sketcher.Constraint("Equal", 22, 24))
sketch2.addConstraint(Sketcher.Constraint("Equal", 23, 25))
sketch2.addConstraint(Sketcher.Constraint("Equal", 24, 26))
sketch2.addConstraint(Sketcher.Constraint("Equal", 25, 27))
sketch2.addConstraint(Sketcher.Constraint("Equal", 26, 28))
sketch2.addConstraint(Sketcher.Constraint("Equal", 28, 30))
sketch2.addConstraint(Sketcher.Constraint("Equal", 29, 31))
sketch2.addConstraint(Sketcher.Constraint("Equal", 30, 32))
sketch2.addConstraint(Sketcher.Constraint("Equal", 31, 33))
sketch2.addConstraint(Sketcher.Constraint("Horizontal", 5, 3, 6, 3))
sketch2.addConstraint(Sketcher.Constraint("Horizontal", 7, 3, 8, 3))
sketch2.addConstraint(Sketcher.Constraint("Horizontal", 11, 3, 12, 3))
sketch2.addConstraint(Sketcher.Constraint("Horizontal", 3, 3, 14, 3))
sketch2.addConstraint(Sketcher.Constraint("Horizontal", 15, 3, 18, 3))
sketch2.addConstraint(Sketcher.Constraint("Horizontal", 17, 3, 20, 3))
sketch2.addConstraint(Sketcher.Constraint("Horizontal", 1, 3, 22, 3))
sketch2.addConstraint(Sketcher.Constraint("Horizontal", 19, 3, 24, 3))
sketch2.addConstraint(Sketcher.Constraint("Horizontal", 29, 3, 30, 3))
sketch2.addConstraint(Sketcher.Constraint("Horizontal", 31, 3, 32, 3))
sketch2.addConstraint(Sketcher.Constraint("Vertical", 1, 3, 2, 3))
sketch2.addConstraint(Sketcher.Constraint("Vertical", 15, 3, 16, 3))
sketch2.addConstraint(Sketcher.Constraint("Vertical", 19, 3, 20, 3))
sketch2.addConstraint(Sketcher.Constraint("Vertical", 23, 3, 24, 3))
sketch2.addConstraint(Sketcher.Constraint("Vertical", 25, 3, 26, 3))
sketch2.addConstraint(Sketcher.Constraint("Vertical", 7, 3, 28, 3))
sketch2.addConstraint(Sketcher.Constraint("Vertical", 9, 3, 30, 3))
sketch2.addConstraint(Sketcher.Constraint("Vertical", 5, 3, 32, 3))
sketch2.addConstraint(Sketcher.Constraint("Diameter", 0, Q("5.5 mm")))
sketch2.addConstraint(Sketcher.Constraint("Diameter", 1, Q("3.2 mm")))
sketch2.addConstraint(Sketcher.Constraint("Diameter", 29, Q("3.3 mm")))
sketch2.addConstraint(Sketcher.Constraint("DistanceY", 0, 3, -1, 1, Q("30 mm")))
sketch2.addConstraint(Sketcher.Constraint("DistanceX", -1, 1, 4, 3, Q("30 mm")))
sketch2.addConstraint(Sketcher.Constraint("DistanceX", -1, 1, 22, 3, Q("10 mm")))
sketch2.addConstraint(Sketcher.Constraint("DistanceY", 2, 3, 0, 3, Q("30 mm")))
sketch2.addConstraint(Sketcher.Constraint("DistanceY", 4, 3, 2, 3, Q("50 mm")))
sketch2.addConstraint(Sketcher.Constraint("DistanceX", 6, 3, 2, 3, Q("20 mm")))
sketch2.addConstraint(Sketcher.Constraint("DistanceX", 18, 3, 14, 3, Q("15 mm")))
sketch2.addConstraint(Sketcher.Constraint("DistanceY", 4, 3, 26, 3, Q("20 mm")))
sketch2.addConstraint(Sketcher.Constraint("DistanceY", 28, 3, 2, 3, Q("20 mm")))
sketch2.addConstraint(Sketcher.Constraint("DistanceX", -1, 1, 0, 3, Q("130 mm")))
sketch2.addConstraint(Sketcher.Constraint("DistanceX", -1, 1, 8, 3, Q("70 mm")))
sketch2.addConstraint(Sketcher.Constraint("DistanceX", -1, 1, 10, 3, Q("44 mm")))
sketch2.addConstraint(Sketcher.Constraint("DistanceY", 10, 3, -1, 1, Q("38 mm")))
sketch2.addConstraint(Sketcher.Constraint("DistanceX", -1, 1, 12, 3, Q("56 mm")))
sketch2.addConstraint(Sketcher.Constraint("DistanceY", 16, 3, -1, 1, Q("72 mm")))
sketch2.addConstraint(Sketcher.Constraint("DistanceX", -1, 1, 14, 3, Q("57.5 mm")))
pad2 = body.newObject("PartDesign::Pad", "Pad001")
pad2.Profile = sketch2
pad2.Length = 2
pad2.Reversed = True
doc.recompute()

fillet = body.newObject("PartDesign::Fillet", "Fillet")
fillet.Base = (pad2, edges_at(pad2, [
    (15, 2, -100),
    (0, 2, -100),
    (75, 2, 0),
    (25, 2, 0),
    (0, 2, 0),
    (75, 2, -20),
    (25, 2, -20),
]))
fillet.Radius = 5

doc.recompute()
